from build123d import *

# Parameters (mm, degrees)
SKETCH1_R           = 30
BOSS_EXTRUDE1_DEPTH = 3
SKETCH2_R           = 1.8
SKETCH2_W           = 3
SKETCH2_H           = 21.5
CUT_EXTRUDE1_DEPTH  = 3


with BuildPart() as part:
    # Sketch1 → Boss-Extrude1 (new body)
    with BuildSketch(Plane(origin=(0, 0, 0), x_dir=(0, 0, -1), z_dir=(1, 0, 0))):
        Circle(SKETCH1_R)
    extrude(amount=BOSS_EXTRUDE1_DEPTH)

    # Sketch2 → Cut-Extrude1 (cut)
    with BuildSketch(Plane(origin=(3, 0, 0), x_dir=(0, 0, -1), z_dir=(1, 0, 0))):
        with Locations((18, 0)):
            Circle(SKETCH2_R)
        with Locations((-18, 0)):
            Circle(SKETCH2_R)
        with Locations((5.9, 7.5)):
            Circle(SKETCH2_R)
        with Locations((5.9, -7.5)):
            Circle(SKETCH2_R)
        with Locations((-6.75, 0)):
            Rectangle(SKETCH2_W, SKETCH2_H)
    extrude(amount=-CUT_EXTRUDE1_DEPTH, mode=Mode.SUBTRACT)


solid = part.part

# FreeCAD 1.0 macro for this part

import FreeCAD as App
import Part
import Sketcher
from FreeCAD import Vector
Q = App.Units.Quantity

doc = App.newDocument("Part")
body = doc.addObject("PartDesign::Body", "Body")

# Sketch on YZ plane
sketch1 = doc.addObject("Sketcher::SketchObject", "Sketch")
body.addObject(sketch1)
sketch1.AttachmentSupport = (doc.YZ_Plane, [""])
sketch1.MapMode = "FlatFace"
sketch1.addGeometry(Part.Circle(Vector(0, 0, 0), Vector(0, 0, 1), 30), False)
sketch1.addConstraint([
    Sketcher.Constraint("Coincident", 0, 3, -1, 1),
    Sketcher.Constraint("Diameter", 0, Q("60 mm")),
])
pad1 = doc.addObject("PartDesign::Pad", "Pad")
body.addObject(pad1)
pad1.Profile = sketch1
pad1.Length = 3

# Sketch on YZ plane
sketch2 = doc.addObject("Sketcher::SketchObject", "Sketch001")
body.addObject(sketch2)
sketch2.AttachmentSupport = (doc.YZ_Plane, [""])
sketch2.MapMode = "FlatFace"
sketch2.AttachmentOffset = App.Placement(Vector(0, 0, 3), App.Rotation())
sketch2.addGeometry([
    Part.Circle(Vector(0, -18, 0), Vector(0, 0, 1), 1.8),  # 0
    Part.Circle(Vector(0, 18, 0), Vector(0, 0, 1), 1.8),  # 1
    Part.Circle(Vector(7.5, -5.9, 0), Vector(0, 0, 1), 1.8),  # 2
    Part.Circle(Vector(-7.5, -5.9, 0), Vector(0, 0, 1), 1.8),  # 3
    Part.LineSegment(Vector(10.8, 8.2, 0), Vector(-10.8, 8.2, 0)),  # 4
    Part.LineSegment(Vector(-10.8, 8.2, 0), Vector(-10.8, 5.2, 0)),  # 5
    Part.LineSegment(Vector(-10.8, 5.2, 0), Vector(10.8, 5.2, 0)),  # 6
    Part.LineSegment(Vector(10.8, 5.2, 0), Vector(10.8, 8.2, 0)),  # 7
], False)
sketch2.addConstraint([
    Sketcher.Constraint("Coincident", 4, 2, 5, 1),
    Sketcher.Constraint("Coincident", 5, 2, 6, 1),
    Sketcher.Constraint("Coincident", 6, 2, 7, 1),
    Sketcher.Constraint("Coincident", 7, 2, 4, 1),
    Sketcher.Constraint("Horizontal", 4),
    Sketcher.Constraint("Vertical", 5),
    Sketcher.Constraint("Horizontal", 6),
    Sketcher.Constraint("Vertical", 7),
    Sketcher.Constraint("Equal", 0, 1),
    Sketcher.Constraint("Equal", 1, 2),
    Sketcher.Constraint("Equal", 2, 3),
    Sketcher.Constraint("Symmetric", 0, 3, 1, 3, -1, 1),
    Sketcher.Constraint("Symmetric", 2, 3, 3, 3, -2),
    Sketcher.Constraint("PointOnObject", 0, 3, -2),
    Sketcher.Constraint("Diameter", 0, Q("3.6 mm")),
    Sketcher.Constraint("DistanceY", 5, 2, 5, 1, Q("3 mm")),
    Sketcher.Constraint("DistanceX", 4, 2, 4, 1, Q("21.5 mm")),
    Sketcher.Constraint("DistanceY", 0, 3, -1, 1, Q("18 mm")),
    Sketcher.Constraint("DistanceX", 3, 3, 2, 3, Q("15 mm")),
    Sketcher.Constraint("DistanceY", 2, 3, -1, 1, Q("5.9 mm")),
    Sketcher.Constraint("DistanceX", 4, 2, -1, 1, Q("10.75 mm")),
    Sketcher.Constraint("DistanceY", -1, 1, 4, 2, Q("8.25 mm")),
])
pocket1 = doc.addObject("PartDesign::Pocket", "Pocket")
body.addObject(pocket1)
pocket1.Profile = sketch2
pocket1.Length = 3

doc.recompute()
